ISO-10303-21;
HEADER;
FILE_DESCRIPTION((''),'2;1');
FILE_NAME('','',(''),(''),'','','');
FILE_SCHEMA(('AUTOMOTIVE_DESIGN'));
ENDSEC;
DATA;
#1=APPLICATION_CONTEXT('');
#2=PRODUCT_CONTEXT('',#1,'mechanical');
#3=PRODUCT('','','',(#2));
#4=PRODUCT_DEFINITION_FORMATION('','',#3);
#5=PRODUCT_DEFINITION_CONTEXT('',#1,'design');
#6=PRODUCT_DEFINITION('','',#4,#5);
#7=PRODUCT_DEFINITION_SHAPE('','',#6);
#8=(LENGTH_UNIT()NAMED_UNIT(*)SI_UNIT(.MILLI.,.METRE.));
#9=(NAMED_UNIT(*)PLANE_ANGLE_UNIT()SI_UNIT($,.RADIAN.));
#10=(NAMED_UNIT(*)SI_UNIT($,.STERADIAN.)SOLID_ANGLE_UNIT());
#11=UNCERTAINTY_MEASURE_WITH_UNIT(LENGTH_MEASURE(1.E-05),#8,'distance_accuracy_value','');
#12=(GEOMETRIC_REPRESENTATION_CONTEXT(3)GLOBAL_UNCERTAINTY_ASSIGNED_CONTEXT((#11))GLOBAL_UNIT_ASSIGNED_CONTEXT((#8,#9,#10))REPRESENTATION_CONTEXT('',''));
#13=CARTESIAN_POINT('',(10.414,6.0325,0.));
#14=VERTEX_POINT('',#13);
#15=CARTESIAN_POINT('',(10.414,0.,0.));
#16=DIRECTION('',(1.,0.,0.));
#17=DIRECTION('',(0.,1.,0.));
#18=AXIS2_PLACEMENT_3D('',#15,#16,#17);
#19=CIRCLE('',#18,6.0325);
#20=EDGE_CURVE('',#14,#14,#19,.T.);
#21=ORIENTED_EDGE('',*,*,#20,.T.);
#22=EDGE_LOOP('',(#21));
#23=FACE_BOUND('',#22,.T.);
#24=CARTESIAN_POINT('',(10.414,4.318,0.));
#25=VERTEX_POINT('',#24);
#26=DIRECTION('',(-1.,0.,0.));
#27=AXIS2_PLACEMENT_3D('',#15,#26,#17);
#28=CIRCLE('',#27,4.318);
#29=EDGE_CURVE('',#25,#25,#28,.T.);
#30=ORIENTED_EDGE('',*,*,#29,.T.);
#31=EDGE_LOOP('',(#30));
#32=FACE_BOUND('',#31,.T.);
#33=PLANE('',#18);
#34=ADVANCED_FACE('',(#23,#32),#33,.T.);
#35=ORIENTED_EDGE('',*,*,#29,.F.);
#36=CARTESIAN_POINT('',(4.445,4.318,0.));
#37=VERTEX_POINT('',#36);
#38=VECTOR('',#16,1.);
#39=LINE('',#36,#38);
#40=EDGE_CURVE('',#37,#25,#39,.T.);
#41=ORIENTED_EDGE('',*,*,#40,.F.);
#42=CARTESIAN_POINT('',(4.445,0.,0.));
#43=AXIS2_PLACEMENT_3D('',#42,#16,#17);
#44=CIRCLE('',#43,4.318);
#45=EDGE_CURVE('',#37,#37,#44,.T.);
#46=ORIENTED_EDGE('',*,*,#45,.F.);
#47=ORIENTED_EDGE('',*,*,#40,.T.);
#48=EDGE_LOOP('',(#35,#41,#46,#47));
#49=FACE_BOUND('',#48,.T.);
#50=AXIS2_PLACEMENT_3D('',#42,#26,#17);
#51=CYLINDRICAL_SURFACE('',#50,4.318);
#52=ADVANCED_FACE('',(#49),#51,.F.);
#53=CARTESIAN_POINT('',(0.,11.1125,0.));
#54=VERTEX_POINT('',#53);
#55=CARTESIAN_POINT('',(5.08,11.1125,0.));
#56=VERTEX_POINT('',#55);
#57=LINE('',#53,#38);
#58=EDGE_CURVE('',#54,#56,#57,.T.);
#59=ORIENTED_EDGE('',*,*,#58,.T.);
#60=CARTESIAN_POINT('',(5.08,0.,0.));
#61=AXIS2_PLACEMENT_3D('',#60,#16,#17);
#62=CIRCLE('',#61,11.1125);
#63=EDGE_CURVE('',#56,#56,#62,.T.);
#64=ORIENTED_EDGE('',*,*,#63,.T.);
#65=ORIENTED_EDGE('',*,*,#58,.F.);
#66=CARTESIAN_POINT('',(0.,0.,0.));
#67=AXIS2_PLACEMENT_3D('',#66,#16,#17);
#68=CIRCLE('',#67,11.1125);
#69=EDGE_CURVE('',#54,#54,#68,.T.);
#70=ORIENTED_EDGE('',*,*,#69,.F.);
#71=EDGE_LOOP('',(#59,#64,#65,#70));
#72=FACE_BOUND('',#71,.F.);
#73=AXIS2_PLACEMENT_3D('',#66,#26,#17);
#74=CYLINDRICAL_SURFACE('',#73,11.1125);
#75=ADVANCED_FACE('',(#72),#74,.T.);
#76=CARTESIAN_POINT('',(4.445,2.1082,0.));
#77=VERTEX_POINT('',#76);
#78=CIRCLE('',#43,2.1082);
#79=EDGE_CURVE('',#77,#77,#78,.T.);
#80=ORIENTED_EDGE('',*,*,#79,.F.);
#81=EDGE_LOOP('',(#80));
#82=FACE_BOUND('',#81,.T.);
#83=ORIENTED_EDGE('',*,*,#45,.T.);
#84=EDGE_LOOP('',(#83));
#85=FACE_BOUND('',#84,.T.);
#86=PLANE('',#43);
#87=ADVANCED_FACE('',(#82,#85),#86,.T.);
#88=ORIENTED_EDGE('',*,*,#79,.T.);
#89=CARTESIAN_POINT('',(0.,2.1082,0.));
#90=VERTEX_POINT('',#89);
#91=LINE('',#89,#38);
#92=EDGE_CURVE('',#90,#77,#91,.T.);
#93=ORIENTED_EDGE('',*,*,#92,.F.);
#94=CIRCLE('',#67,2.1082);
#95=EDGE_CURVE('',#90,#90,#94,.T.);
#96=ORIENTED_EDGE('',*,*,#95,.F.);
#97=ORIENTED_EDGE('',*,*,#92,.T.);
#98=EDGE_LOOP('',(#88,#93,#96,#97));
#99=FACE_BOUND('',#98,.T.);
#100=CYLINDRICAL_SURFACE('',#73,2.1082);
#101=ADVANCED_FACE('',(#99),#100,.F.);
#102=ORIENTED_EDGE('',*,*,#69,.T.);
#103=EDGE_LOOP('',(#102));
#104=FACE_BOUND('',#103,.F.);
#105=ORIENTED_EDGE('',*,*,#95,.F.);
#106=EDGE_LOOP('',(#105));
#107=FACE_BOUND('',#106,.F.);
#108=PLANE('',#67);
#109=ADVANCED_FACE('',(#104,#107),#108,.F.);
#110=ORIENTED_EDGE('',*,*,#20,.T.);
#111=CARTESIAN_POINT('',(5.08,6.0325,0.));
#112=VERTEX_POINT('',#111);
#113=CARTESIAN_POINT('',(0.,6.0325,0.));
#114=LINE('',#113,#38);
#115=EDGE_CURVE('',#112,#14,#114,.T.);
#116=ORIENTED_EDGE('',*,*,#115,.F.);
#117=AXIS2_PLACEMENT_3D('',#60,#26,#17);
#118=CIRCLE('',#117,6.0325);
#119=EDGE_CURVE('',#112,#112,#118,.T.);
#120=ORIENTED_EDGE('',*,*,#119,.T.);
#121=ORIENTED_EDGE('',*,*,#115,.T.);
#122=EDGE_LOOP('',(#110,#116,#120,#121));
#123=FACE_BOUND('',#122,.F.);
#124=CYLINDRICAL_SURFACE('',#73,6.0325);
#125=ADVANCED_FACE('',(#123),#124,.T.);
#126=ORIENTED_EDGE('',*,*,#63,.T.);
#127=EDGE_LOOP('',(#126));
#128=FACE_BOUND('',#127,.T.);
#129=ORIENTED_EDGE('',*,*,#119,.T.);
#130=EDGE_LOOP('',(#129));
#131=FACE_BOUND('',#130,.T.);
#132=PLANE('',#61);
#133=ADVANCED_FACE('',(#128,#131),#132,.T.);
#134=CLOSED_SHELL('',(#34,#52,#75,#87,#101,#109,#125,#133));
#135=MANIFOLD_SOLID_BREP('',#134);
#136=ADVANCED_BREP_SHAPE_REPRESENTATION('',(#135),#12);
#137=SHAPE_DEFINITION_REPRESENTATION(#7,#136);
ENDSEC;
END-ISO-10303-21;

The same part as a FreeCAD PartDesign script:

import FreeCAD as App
import Part
import Sketcher
Q = App.Units.Quantity

doc = App.newDocument("Part")
body = doc.addObject("PartDesign::Body", "Body")

# Sketch on YZ plane
sketch1 = body.newObject("Sketcher::SketchObject", "Sketch")
sketch1.AttachmentSupport = (doc.getObject("YZ_Plane"), [""])
sketch1.MapMode = "FlatFace"
sketch1.addGeometry([
    Part.Circle(App.Vector(0, 0, 0), App.Vector(0, 0, 1), 11.1),
    Part.Circle(App.Vector(0, 0, 0), App.Vector(0, 0, 1), 2.1),
], False)
sketch1.addConstraint([
    Sketcher.Constraint("Coincident", 0, 3, -1, 1),
    Sketcher.Constraint("Coincident", 1, 3, -1, 1),
    Sketcher.Constraint("Diameter", 0, Q("0.875 in")),
    Sketcher.Constraint("Diameter", 1, Q("0.166 in")),
])
pad1 = body.newObject("PartDesign::Pad", "Pad")
pad1.Profile = sketch1
pad1.Length = Q("0.2 in")

# Sketch on YZ plane
sketch2 = body.newObject("Sketcher::SketchObject", "Sketch001")
sketch2.AttachmentSupport = (doc.getObject("YZ_Plane"), [""])
sketch2.MapMode = "FlatFace"
sketch2.addGeometry([
    Part.Circle(App.Vector(0, 0, 0), App.Vector(0, 0, 1), 6),
    Part.Circle(App.Vector(0, 0, 0), App.Vector(0, 0, 1), 2.1),
], False)
sketch2.addConstraint([
    Sketcher.Constraint("Coincident", 0, 3, -1, 1),
    Sketcher.Constraint("Coincident", 1, 3, -1, 1),
    Sketcher.Constraint("Diameter", 0, Q("0.475 in")),
    Sketcher.Constraint("Diameter", 1, Q("0.166 in")),
])
pad2 = body.newObject("PartDesign::Pad", "Pad001")
pad2.Profile = sketch2
pad2.Length = Q("0.41 in")

# Sketch on YZ plane
sketch3 = body.newObject("Sketcher::SketchObject", "Sketch002")
sketch3.AttachmentSupport = (doc.getObject("YZ_Plane"), [""])
sketch3.MapMode = "FlatFace"
sketch3.AttachmentOffset = App.Placement(App.Vector(0, 0, 0.175 * 25.4), App.Rotation())
sketch3.addGeometry([
    Part.Circle(App.Vector(0, 0, 0), App.Vector(0, 0, 1), 4.3),
    Part.Circle(App.Vector(0, 0, 0), App.Vector(0, 0, 1), 2.1),
], False)
sketch3.addConstraint([
    Sketcher.Constraint("Coincident", 0, 3, -1, 1),
    Sketcher.Constraint("Coincident", 1, 3, -1, 1),
    Sketcher.Constraint("Diameter", 0, Q("0.34 in")),
    Sketcher.Constraint("Diameter", 1, Q("0.166 in")),
])
pocket1 = body.newObject("PartDesign::Pocket", "Pocket")
pocket1.Profile = sketch3
pocket1.Length = Q("0.325 in")
pocket1.Reversed = True

doc.recompute()
